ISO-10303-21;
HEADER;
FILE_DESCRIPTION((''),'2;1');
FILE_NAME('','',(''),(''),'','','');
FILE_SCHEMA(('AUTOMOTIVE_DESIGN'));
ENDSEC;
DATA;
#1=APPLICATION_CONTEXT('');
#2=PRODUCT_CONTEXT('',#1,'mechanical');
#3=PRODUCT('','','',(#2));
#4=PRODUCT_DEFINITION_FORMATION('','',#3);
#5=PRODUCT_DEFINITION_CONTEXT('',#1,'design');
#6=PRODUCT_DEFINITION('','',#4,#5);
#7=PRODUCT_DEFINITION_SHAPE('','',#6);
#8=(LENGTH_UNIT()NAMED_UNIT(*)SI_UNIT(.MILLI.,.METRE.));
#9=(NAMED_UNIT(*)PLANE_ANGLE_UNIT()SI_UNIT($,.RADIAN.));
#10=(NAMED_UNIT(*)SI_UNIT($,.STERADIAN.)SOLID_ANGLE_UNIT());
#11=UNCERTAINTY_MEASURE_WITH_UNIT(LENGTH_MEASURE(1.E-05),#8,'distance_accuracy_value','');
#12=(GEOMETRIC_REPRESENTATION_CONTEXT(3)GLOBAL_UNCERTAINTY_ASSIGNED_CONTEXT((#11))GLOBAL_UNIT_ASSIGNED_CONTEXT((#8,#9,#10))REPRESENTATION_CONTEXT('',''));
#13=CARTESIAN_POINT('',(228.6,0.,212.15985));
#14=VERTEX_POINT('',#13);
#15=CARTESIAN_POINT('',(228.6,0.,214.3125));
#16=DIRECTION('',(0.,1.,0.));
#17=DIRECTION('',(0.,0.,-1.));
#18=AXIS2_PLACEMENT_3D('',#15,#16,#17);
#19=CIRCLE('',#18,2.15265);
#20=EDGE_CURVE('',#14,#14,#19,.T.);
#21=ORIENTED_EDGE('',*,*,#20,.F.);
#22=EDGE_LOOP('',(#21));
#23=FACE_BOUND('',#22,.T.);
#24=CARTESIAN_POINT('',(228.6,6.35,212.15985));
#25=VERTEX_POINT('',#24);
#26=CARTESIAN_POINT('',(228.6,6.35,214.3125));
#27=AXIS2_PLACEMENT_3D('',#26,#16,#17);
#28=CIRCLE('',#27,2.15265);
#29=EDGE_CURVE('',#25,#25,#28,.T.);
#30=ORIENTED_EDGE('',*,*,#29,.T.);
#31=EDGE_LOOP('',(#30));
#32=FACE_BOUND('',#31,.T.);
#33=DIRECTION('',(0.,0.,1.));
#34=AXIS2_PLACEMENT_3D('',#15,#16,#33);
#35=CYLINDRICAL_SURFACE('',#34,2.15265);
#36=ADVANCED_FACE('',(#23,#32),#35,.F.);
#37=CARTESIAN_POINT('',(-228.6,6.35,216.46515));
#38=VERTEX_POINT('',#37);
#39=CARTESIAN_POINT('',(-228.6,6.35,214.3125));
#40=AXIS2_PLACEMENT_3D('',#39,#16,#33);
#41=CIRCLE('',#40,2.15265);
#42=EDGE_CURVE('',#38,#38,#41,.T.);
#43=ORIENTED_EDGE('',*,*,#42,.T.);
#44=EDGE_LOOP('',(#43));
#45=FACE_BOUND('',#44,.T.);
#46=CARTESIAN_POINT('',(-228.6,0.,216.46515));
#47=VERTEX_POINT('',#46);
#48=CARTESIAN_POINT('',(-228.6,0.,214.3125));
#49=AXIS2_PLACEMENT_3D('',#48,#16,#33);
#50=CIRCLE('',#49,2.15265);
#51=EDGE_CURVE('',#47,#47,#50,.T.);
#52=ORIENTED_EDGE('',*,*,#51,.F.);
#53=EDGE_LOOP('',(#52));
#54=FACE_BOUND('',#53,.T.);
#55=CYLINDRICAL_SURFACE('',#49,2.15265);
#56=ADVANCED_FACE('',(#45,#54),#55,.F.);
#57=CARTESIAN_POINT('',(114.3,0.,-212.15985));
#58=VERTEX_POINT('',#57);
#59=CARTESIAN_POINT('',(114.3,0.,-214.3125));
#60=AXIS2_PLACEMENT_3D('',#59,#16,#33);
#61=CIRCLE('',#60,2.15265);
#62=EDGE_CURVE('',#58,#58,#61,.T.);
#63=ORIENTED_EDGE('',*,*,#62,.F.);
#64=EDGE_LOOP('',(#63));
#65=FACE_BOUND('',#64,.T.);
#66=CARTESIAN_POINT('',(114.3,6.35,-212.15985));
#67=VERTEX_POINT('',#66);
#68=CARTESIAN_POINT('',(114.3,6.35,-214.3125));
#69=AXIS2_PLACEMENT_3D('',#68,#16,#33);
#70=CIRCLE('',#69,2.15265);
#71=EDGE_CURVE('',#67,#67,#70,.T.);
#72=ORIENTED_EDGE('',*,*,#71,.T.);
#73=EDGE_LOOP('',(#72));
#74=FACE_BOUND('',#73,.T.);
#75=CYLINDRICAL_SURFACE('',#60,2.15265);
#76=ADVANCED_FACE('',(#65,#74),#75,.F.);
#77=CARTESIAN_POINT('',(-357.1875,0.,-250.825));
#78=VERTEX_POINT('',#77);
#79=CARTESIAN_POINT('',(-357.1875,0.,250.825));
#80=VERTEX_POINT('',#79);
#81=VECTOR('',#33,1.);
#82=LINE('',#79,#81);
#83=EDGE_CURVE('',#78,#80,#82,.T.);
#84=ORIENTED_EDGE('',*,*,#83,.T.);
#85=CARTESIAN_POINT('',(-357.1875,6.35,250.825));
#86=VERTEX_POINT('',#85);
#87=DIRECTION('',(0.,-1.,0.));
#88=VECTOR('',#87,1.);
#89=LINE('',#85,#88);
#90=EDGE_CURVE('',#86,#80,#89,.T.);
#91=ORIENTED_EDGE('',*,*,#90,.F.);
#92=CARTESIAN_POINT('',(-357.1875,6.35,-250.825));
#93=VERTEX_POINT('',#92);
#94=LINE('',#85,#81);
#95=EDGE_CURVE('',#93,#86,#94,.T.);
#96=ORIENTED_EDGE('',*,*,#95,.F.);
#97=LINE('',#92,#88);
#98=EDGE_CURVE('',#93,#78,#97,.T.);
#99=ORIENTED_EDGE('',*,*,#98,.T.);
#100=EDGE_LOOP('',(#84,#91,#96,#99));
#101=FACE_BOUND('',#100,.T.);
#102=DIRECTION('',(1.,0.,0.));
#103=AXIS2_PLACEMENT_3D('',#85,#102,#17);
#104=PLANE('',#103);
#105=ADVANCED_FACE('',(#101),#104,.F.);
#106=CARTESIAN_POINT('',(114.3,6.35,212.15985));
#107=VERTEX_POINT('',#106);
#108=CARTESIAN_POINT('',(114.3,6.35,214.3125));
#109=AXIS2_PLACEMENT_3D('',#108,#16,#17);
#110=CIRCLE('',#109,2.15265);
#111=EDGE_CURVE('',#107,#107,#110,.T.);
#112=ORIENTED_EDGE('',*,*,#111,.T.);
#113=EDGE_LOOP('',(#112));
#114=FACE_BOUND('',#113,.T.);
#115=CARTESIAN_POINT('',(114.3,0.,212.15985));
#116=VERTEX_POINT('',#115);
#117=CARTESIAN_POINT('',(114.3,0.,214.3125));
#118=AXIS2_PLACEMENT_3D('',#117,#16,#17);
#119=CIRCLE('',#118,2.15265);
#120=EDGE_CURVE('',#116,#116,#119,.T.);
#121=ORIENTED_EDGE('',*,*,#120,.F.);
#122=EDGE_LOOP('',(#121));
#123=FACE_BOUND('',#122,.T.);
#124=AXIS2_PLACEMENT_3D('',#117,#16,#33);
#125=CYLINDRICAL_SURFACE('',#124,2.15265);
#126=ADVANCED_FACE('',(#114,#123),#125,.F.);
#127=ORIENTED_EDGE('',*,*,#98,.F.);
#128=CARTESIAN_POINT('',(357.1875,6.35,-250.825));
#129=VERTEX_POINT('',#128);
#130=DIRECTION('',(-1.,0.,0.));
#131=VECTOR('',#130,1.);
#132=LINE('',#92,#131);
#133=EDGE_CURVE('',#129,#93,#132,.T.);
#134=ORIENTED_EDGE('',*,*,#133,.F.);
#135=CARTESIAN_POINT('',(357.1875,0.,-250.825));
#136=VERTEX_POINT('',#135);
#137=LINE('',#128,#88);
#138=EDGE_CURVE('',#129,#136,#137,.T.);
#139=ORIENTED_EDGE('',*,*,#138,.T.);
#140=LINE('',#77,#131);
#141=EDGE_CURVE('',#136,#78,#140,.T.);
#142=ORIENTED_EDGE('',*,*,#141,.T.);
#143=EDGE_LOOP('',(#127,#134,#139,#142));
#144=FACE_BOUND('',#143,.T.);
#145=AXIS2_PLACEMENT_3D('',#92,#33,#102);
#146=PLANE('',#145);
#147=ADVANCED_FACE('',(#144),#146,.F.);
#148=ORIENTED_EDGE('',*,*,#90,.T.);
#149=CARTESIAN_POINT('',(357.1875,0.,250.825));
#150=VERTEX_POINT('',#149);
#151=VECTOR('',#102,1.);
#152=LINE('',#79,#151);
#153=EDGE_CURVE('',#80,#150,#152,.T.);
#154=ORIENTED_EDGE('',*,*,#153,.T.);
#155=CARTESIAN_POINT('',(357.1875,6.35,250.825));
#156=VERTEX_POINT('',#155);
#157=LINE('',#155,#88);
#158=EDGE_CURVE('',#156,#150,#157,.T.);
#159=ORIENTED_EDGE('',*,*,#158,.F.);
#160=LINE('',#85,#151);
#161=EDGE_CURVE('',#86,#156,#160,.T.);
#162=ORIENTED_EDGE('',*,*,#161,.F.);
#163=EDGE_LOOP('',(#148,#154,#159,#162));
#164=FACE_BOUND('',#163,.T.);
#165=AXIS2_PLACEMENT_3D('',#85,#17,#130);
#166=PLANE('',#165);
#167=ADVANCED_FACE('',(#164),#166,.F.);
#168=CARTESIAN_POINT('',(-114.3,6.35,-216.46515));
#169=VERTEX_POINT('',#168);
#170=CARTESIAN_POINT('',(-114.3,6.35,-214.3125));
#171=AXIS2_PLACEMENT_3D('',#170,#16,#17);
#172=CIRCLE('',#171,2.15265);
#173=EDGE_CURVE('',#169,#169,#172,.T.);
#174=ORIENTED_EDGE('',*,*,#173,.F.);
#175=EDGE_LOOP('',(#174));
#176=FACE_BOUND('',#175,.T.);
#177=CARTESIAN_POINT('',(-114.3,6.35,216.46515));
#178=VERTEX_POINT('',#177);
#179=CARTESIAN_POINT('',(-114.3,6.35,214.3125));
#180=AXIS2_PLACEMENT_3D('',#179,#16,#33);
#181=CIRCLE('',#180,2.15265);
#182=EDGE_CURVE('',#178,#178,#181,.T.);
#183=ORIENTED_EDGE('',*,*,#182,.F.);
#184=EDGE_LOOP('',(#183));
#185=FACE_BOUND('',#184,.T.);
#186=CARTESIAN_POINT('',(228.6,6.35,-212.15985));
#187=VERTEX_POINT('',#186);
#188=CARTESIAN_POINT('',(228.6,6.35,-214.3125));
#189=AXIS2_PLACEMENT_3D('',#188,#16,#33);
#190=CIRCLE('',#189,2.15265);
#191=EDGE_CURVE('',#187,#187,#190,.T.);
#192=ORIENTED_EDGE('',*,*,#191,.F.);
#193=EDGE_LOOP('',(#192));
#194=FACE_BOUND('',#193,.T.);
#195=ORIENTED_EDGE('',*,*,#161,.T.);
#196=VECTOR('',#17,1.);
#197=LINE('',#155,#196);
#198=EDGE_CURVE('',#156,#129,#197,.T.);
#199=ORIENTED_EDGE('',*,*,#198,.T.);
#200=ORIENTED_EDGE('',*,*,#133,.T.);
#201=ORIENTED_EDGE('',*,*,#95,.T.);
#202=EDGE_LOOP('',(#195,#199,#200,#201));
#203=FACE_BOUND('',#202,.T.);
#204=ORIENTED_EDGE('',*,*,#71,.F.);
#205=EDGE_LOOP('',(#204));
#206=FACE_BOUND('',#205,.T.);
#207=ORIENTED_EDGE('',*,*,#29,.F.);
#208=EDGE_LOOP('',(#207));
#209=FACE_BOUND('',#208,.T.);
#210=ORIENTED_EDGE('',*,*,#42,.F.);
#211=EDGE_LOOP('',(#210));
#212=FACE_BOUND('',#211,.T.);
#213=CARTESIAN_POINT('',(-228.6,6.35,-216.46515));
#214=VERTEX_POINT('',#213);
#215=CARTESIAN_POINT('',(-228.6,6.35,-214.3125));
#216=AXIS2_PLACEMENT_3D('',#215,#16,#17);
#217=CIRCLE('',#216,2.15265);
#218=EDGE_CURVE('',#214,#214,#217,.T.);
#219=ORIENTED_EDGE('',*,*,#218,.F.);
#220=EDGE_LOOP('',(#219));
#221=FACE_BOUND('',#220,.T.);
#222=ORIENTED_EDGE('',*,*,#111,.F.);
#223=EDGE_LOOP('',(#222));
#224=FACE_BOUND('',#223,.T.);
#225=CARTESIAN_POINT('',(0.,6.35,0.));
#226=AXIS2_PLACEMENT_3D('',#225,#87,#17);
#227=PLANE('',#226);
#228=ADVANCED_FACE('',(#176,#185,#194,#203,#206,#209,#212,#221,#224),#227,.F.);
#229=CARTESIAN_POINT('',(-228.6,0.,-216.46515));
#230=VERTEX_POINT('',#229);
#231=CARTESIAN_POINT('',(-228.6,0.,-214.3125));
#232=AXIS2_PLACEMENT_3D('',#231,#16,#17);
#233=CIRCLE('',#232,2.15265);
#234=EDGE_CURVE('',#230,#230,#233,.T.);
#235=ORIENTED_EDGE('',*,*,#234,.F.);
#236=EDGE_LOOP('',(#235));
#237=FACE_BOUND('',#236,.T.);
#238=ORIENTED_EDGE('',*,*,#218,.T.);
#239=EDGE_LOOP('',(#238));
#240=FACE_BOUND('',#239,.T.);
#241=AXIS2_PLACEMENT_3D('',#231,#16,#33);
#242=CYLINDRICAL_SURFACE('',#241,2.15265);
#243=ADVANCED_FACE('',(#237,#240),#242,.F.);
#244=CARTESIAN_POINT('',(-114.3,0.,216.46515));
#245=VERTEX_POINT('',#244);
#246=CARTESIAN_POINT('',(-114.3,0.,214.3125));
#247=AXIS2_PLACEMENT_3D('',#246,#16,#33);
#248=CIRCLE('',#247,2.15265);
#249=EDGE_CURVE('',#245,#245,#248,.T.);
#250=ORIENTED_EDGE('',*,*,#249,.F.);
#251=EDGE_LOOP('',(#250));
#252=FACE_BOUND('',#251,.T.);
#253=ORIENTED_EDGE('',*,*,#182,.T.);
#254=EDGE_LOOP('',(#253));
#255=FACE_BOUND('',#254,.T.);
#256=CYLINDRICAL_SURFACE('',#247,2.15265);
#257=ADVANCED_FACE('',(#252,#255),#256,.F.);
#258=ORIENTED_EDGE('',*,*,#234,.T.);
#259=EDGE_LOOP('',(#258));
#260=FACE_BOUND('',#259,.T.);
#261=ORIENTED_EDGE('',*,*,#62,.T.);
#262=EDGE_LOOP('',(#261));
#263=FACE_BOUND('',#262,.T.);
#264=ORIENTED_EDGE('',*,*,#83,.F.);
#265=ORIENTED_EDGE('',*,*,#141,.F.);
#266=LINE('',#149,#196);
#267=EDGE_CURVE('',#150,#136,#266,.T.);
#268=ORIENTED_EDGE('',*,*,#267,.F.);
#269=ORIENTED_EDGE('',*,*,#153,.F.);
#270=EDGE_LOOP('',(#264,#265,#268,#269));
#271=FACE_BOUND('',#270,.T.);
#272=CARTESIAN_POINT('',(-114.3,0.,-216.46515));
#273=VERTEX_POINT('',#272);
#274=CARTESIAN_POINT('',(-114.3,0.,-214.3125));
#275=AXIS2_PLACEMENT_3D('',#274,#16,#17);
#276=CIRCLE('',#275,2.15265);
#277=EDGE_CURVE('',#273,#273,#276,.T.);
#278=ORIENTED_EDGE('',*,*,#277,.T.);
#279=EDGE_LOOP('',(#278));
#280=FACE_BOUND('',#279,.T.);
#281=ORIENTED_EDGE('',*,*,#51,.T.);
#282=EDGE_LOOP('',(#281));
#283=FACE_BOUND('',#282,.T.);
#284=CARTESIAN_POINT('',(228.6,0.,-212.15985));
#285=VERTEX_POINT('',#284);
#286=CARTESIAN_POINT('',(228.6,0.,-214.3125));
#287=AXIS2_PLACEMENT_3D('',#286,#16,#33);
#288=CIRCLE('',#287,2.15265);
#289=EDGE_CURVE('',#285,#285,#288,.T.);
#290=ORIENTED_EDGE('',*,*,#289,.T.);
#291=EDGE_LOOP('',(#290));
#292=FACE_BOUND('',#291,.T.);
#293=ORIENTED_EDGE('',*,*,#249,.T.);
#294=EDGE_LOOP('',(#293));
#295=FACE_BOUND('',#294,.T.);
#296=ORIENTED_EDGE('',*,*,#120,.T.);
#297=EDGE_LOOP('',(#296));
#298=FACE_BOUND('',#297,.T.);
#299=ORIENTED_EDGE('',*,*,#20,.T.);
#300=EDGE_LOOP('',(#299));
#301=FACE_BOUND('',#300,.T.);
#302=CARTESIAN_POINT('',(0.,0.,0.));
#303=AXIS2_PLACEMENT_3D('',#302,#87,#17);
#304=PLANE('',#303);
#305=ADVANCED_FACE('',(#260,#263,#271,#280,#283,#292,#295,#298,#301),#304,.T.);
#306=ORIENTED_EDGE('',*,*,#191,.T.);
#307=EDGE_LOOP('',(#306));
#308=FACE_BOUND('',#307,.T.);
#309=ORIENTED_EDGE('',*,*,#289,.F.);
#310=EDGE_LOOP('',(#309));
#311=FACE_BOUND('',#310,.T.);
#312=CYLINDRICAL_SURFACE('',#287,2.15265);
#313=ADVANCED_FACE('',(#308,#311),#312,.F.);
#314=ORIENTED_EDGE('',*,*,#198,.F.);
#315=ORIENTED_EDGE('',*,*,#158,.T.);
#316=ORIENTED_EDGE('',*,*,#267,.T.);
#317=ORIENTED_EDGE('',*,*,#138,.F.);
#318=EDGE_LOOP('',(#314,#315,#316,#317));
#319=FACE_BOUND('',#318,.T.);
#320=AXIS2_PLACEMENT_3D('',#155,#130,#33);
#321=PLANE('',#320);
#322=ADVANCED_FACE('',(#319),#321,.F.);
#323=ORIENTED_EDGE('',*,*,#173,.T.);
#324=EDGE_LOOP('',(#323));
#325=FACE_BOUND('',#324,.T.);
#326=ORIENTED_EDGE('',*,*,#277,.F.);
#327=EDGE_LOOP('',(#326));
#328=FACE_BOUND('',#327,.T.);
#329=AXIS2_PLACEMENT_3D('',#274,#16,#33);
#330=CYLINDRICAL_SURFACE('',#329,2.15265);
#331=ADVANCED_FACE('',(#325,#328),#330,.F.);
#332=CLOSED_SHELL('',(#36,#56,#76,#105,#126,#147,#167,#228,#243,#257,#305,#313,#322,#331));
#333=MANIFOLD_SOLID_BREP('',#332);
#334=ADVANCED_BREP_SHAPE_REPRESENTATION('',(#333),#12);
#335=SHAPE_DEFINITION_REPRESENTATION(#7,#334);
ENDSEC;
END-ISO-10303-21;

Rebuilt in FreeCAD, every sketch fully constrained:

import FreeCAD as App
import Part
import Sketcher

V = App.Vector
Q = App.Units.Quantity

doc = App.newDocument("Part")
params = doc.addObject("Spreadsheet::Sheet", "Params")
for row, (alias, value) in enumerate([
    ("sketch1_height", "19.75 in"),
    ("sketch1_width", "28.125 in"),
    ("pad1_length", "0.25 in"),
], start=1):
    params.set(f"A{row}", alias)
    params.set(f"B{row}", "=" + value)
    params.setAlias(f"B{row}", alias)

body = doc.addObject("PartDesign::Body", "Body")

# Sketch on XZ plane
sketch1 = body.newObject("Sketcher::SketchObject", "Sketch")
sketch1.AttachmentSupport = (doc.getObject("XZ_Plane"), [""])
sketch1.MapMode = "FlatFace"
sketch1.addGeometry(Part.LineSegment(V(-357, -251, 0), V(-357, 251, 0)), False)
sketch1.addGeometry(Part.LineSegment(V(-357, 251, 0), V(357, 251, 0)), False)
sketch1.addGeometry(Part.LineSegment(V(357, 251, 0), V(357, -251, 0)), False)
sketch1.addGeometry(Part.LineSegment(V(357, -251, 0), V(-357, -251, 0)), False)
sketch1.addConstraint(Sketcher.Constraint("Coincident", 0, 2, 1, 1))
sketch1.addConstraint(Sketcher.Constraint("Coincident", 1, 2, 2, 1))
sketch1.addConstraint(Sketcher.Constraint("Coincident", 2, 2, 3, 1))
sketch1.addConstraint(Sketcher.Constraint("Coincident", 3, 2, 0, 1))
sketch1.addConstraint(Sketcher.Constraint("Vertical", 0))
sketch1.addConstraint(Sketcher.Constraint("Horizontal", 1))
sketch1.addConstraint(Sketcher.Constraint("Vertical", 2))
sketch1.addConstraint(Sketcher.Constraint("Horizontal", 3))
sketch1.addConstraint(Sketcher.Constraint("Symmetric", 0, 2, 2, 2, -1, 1))
sketch1.addConstraint(Sketcher.Constraint("DistanceY", 0, 1, 0, 2, Q("19.75 in")))
sketch1.addConstraint(Sketcher.Constraint("DistanceX", 1, 1, 1, 2, Q("28.125 in")))
sketch1.setExpression("Constraints[9]", "Params.sketch1_height")
sketch1.setExpression("Constraints[10]", "Params.sketch1_width")
pad1 = body.newObject("PartDesign::Pad", "Pad")
pad1.Profile = sketch1
pad1.setExpression("Length", "Params.pad1_length")
pad1.Reversed = True

# Sketch on XZ plane
sketch2 = body.newObject("Sketcher::SketchObject", "Sketch001")
sketch2.AttachmentSupport = (doc.getObject("XZ_Plane"), [""])
sketch2.MapMode = "FlatFace"
sketch2.AttachmentOffset = App.Placement(V(0, 0, -0.25 * 25.4), App.Rotation())
sketch2.addGeometry(Part.Circle(V(-114.3, 214.3, 0), V(0, 0, 1), 2.2), False)
sketch2.addGeometry(Part.Circle(V(-228.6, 214.3, 0), V(0, 0, 1), 2.2), False)
sketch2.addGeometry(Part.Circle(V(228.6, 214.3, 0), V(0, 0, 1), 2.2), False)
sketch2.addGeometry(Part.Circle(V(114.3, 214.3, 0), V(0, 0, 1), 2.2), False)
sketch2.addGeometry(Part.Circle(V(114.3, -214.3, 0), V(0, 0, 1), 2.2), False)
sketch2.addGeometry(Part.Circle(V(228.6, -214.3, 0), V(0, 0, 1), 2.2), False)
sketch2.addGeometry(Part.Circle(V(-228.6, -214.3, 0), V(0, 0, 1), 2.2), False)
sketch2.addGeometry(Part.Circle(V(-114.3, -214.3, 0), V(0, 0, 1), 2.2), False)
sketch2.addConstraint(Sketcher.Constraint("Equal", 0, 1))
sketch2.addConstraint(Sketcher.Constraint("Equal", 1, 2))
sketch2.addConstraint(Sketcher.Constraint("Equal", 2, 3))
sketch2.addConstraint(Sketcher.Constraint("Equal", 3, 4))
sketch2.addConstraint(Sketcher.Constraint("Equal", 4, 5))
sketch2.addConstraint(Sketcher.Constraint("Equal", 5, 6))
sketch2.addConstraint(Sketcher.Constraint("Equal", 6, 7))
sketch2.addConstraint(Sketcher.Constraint("Symmetric", 0, 3, 4, 3, -1, 1))
sketch2.addConstraint(Sketcher.Constraint("Symmetric", 1, 3, 5, 3, -1, 1))
sketch2.addConstraint(Sketcher.Constraint("Symmetric", 2, 3, 6, 3, -1, 1))
sketch2.addConstraint(Sketcher.Constraint("Symmetric", 3, 3, 7, 3, -1, 1))
sketch2.addConstraint(Sketcher.Constraint("Symmetric", 1, 3, 2, 3, -2))
sketch2.addConstraint(Sketcher.Constraint("Symmetric", 0, 3, 3, 3, -2))
sketch2.addConstraint(Sketcher.Constraint("Horizontal", 0, 3, 1, 3))
sketch2.addConstraint(Sketcher.Constraint("DistanceX", 1, 3, -1, 1, Q("9 in")))
sketch2.addConstraint(Sketcher.Constraint("DistanceX", 0, 3, 3, 3, Q("9 in")))
sketch2.addConstraint(Sketcher.Constraint("Diameter", 0, Q("0.1695 in")))
sketch2.addConstraint(Sketcher.Constraint("DistanceY", -1, 1, 0, 3, Q("8.4375 in")))
pocket1 = body.newObject("PartDesign::Pocket", "Pocket")
pocket1.Profile = sketch2
pocket1.Type = "ThroughAll"
pocket1.Reversed = True

doc.recompute()
